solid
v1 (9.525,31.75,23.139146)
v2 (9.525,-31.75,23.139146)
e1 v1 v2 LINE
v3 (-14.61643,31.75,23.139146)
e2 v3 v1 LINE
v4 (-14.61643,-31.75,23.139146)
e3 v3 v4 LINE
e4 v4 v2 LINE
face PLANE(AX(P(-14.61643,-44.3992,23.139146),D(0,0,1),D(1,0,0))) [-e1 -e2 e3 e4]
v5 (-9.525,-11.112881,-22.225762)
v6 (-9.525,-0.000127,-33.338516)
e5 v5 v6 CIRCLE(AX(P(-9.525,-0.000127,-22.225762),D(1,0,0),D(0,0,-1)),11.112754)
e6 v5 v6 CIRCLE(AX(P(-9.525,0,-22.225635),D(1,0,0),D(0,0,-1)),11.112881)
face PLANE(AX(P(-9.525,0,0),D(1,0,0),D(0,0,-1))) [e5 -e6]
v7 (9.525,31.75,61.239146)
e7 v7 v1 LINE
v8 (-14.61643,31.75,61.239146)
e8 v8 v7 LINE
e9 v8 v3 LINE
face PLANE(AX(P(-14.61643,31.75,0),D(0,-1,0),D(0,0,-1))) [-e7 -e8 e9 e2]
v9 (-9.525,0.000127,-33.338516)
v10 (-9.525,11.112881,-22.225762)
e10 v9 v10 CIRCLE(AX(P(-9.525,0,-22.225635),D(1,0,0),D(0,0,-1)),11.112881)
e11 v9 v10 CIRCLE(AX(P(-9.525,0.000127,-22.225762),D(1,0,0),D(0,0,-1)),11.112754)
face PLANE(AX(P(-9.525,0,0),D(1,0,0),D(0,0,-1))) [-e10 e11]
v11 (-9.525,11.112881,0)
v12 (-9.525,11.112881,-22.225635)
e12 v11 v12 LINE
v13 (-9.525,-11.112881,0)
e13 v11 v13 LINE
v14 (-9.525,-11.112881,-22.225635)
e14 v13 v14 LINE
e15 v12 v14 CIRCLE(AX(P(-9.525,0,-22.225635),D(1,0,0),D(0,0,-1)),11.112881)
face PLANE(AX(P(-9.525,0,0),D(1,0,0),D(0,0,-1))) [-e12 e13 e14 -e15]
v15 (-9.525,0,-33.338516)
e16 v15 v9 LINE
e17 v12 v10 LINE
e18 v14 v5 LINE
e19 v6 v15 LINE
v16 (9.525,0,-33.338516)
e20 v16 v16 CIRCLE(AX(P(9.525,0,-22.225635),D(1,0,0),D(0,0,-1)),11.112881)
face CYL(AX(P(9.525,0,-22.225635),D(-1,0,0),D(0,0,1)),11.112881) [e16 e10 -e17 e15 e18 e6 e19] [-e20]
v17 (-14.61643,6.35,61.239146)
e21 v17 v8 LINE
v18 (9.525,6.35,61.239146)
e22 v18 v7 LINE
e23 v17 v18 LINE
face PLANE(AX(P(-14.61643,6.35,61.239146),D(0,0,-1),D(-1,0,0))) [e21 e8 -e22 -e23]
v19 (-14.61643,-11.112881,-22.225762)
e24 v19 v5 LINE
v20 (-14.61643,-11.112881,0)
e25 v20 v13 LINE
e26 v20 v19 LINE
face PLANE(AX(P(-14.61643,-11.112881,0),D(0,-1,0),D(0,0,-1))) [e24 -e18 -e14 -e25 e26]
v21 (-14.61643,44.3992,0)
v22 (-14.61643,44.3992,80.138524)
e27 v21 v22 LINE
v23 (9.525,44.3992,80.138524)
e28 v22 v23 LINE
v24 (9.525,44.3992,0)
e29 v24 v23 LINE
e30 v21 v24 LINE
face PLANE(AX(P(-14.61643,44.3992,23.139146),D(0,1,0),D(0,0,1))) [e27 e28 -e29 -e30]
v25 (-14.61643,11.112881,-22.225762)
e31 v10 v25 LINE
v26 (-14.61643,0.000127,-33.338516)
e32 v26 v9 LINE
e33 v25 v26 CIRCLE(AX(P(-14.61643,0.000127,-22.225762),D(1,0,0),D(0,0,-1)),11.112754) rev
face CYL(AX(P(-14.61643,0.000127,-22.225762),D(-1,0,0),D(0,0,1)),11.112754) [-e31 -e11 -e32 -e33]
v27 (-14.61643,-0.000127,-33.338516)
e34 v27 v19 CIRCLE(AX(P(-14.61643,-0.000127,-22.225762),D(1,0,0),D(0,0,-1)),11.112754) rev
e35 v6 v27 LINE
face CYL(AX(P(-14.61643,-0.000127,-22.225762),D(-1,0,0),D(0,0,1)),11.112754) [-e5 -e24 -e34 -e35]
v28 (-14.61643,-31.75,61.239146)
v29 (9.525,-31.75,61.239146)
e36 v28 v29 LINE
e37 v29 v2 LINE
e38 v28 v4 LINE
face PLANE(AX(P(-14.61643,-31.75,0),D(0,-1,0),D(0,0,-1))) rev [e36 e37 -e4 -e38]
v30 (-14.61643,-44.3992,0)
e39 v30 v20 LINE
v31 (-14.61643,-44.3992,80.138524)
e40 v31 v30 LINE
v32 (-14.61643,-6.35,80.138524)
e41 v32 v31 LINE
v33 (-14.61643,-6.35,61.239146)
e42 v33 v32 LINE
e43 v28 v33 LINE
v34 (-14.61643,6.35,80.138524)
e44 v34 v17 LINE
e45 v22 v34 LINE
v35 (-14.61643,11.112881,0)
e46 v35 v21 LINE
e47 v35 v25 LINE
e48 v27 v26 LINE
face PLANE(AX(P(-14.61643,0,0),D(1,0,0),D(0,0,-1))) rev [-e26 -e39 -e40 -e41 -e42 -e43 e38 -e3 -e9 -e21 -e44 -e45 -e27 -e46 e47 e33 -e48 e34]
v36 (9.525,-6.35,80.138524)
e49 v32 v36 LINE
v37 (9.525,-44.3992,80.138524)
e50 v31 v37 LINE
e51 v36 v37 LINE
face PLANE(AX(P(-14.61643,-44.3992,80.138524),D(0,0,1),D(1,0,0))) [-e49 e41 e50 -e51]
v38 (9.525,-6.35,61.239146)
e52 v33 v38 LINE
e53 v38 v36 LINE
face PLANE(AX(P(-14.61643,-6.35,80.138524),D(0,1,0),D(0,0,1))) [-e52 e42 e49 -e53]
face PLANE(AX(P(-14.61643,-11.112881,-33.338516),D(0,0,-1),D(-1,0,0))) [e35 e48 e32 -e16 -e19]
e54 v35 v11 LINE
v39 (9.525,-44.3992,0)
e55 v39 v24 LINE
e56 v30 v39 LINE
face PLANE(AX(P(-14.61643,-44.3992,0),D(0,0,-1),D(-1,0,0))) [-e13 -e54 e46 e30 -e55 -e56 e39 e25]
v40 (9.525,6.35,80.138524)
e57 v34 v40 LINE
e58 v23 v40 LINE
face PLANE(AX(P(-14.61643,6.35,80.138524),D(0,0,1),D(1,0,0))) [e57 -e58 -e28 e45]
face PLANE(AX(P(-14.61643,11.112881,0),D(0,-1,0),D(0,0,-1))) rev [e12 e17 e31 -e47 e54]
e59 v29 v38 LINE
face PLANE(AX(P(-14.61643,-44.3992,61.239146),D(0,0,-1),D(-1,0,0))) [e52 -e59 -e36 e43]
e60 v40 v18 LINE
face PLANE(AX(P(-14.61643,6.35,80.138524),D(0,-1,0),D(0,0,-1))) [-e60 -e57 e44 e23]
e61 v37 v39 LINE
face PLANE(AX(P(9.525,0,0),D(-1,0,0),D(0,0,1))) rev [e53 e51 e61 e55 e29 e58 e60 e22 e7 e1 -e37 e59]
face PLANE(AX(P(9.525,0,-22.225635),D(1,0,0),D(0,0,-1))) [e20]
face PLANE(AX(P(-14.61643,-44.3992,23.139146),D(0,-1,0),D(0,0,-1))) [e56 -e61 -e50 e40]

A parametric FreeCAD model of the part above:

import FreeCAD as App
import Part
import Sketcher
Q = App.Units.Quantity


def edges_at(feature, points):
    """Names of the edges that pass closest to the given points."""
    edges = feature.Shape.Edges
    near = lambda p: min(range(len(edges)), key=lambda i: edges[i].distToShape(Part.Vertex(*p))[0])
    return sorted({f"Edge{near(p) + 1}" for p in points})


def add_polygon(sketch, points):
    """Adds a closed chain of lines whose ends are joined by coincident constraints."""
    first, n = sketch.GeometryCount, len(points)
    for a, b in zip(points, points[1:] + points[:1]):
        sketch.addGeometry(Part.LineSegment(App.Vector(*a, 0), App.Vector(*b, 0)), False)
    for i in range(n):
        sketch.addConstraint(Sketcher.Constraint("Coincident", first + i, 2, first + (i + 1) % n, 1))

doc = App.newDocument("Part")
body = doc.addObject("PartDesign::Body", "Body")

sketch1 = body.newObject("Sketcher::SketchObject", "Sketch")
sketch1.AttachmentSupport = (doc.getObject("YZ_Plane"), [""])
sketch1.MapMode = "FlatFace"
sketch1.addGeometry(Part.Circle(App.Vector(0, -22.225635, 0), App.Vector(0, 0, 1), 11.112881), False)
sketch1.addConstraint([
    Sketcher.Constraint("PointOnObject", 0, 3, -2),
    Sketcher.Constraint("Diameter", 0, Q("22.225762 mm")),
    Sketcher.Constraint("DistanceY", 0, 3, -1, 1, Q("22.225635 mm")),
])
pad1 = body.newObject("PartDesign::Pad", "Pad")
pad1.Profile = sketch1
pad1.Length = Q("0.75 in")
pad1.Midplane = True

sketch2 = body.newObject("Sketcher::SketchObject", "Sketch001")
sketch2.AttachmentSupport = (doc.getObject("YZ_Plane"), [""])
sketch2.MapMode = "FlatFace"
sketch2.AttachmentOffset = App.Placement(App.Vector(0, 0, -0.375 * 25.4), App.Rotation())
add_polygon(sketch2, [(11.112881, 0), (11.112881, -33.338516), (-11.112881, -33.338516), (-11.112881, 0)])
sketch2.addConstraint([
    Sketcher.Constraint("Vertical", 0),
    Sketcher.Constraint("Horizontal", 1),
    Sketcher.Constraint("Vertical", 2),
    Sketcher.Constraint("Horizontal", 3),
    Sketcher.Constraint("Symmetric", 2, 2, 3, 2, -1, 1),
    Sketcher.Constraint("DistanceX", 1, 2, 1, 1, Q("22.225762 mm")),
    Sketcher.Constraint("DistanceY", 0, 2, 0, 1, Q("33.338516 mm")),
])
pad2 = body.newObject("PartDesign::Pad", "Pad001")
pad2.Profile = sketch2
pad2.Length = 5.09143
pad2.Reversed = True
doc.recompute()

fillet = body.newObject("PartDesign::Fillet", "Fillet")
fillet.Base = (pad2, edges_at(pad2, [(-12.071, 11.113, -33.339)]))
fillet.Radius = 11.112754
doc.recompute()

fillet2 = body.newObject("PartDesign::Fillet", "Fillet001")
fillet2.Base = (fillet, edges_at(fillet, [(-12.071, -11.113, -33.339)]))
fillet2.Radius = 11.112754

sketch3 = body.newObject("Sketcher::SketchObject", "Sketch002")
sketch3.AttachmentSupport = (doc.getObject("YZ_Plane"), [""])
sketch3.MapMode = "FlatFace"
sketch3.AttachmentOffset = App.Placement(App.Vector(0, 0, 0.375 * 25.4), App.Rotation())
add_polygon(sketch3, [(-44.3992, 23.139146), (-44.3992, 0), (44.3992, 0), (44.3992, 23.139146)])
sketch3.addConstraint([
    Sketcher.Constraint("Vertical", 0),
    Sketcher.Constraint("Horizontal", 1),
    Sketcher.Constraint("Vertical", 2),
    Sketcher.Constraint("Horizontal", 3),
    Sketcher.Constraint("Symmetric", 0, 2, 1, 2, -1, 1),
    Sketcher.Constraint("DistanceX", 1, 1, 1, 2, Q("3.496 in")),
    Sketcher.Constraint("DistanceY", 0, 2, 0, 1, Q("23.139146 mm")),
])
pad3 = body.newObject("PartDesign::Pad", "Pad002")
pad3.Profile = sketch3
pad3.Length = 24.14143
pad3.Reversed = True

sketch4 = body.newObject("Sketcher::SketchObject", "Sketch003")
sketch4.AttachmentSupport = (doc.getObject("YZ_Plane"), [""])
sketch4.MapMode = "FlatFace"
sketch4.AttachmentOffset = App.Placement(App.Vector(0, 0, 0.375 * 25.4), App.Rotation())
add_polygon(sketch4, [(31.75, 61.239146), (31.75, 23.139146), (44.3992, 23.139146), (44.3992, 61.239146)])
add_polygon(sketch4, [(-44.3992, 61.239146), (-44.3992, 23.139146), (-31.75, 23.139146), (-31.75, 61.239146)])
sketch4.addConstraint([
    Sketcher.Constraint("Vertical", 0),
    Sketcher.Constraint("Horizontal", 1),
    Sketcher.Constraint("Vertical", 2),
    Sketcher.Constraint("Horizontal", 3),
    Sketcher.Constraint("Vertical", 4),
    Sketcher.Constraint("Horizontal", 5),
    Sketcher.Constraint("Vertical", 6),
    Sketcher.Constraint("Horizontal", 7),
    Sketcher.Constraint("Symmetric", 1, 2, 4, 2, -2),
    Sketcher.Constraint("Symmetric", 3, 2, 6, 2, -2),
    Sketcher.Constraint("DistanceY", 0, 2, 0, 1, Q("1.5 in")),
    Sketcher.Constraint("DistanceX", 5, 2, 0, 2, Q("2.5 in")),
    Sketcher.Constraint("DistanceX", 1, 1, 1, 2, Q("0.498 in")),
    Sketcher.Constraint("DistanceY", -1, 1, 0, 2, Q("23.139146 mm")),
])
pad4 = body.newObject("PartDesign::Pad", "Pad003")
pad4.Profile = sketch4
pad4.Length = 24.14143
pad4.Reversed = True

sketch5 = body.newObject("Sketcher::SketchObject", "Sketch004")
sketch5.AttachmentSupport = (doc.getObject("YZ_Plane"), [""])
sketch5.MapMode = "FlatFace"
sketch5.AttachmentOffset = App.Placement(App.Vector(0, 0, 0.375 * 25.4), App.Rotation())
add_polygon(sketch5, [(6.35, 80.138524), (6.35, 61.239146), (44.3992, 61.239146), (44.3992, 80.138524)])
add_polygon(sketch5, [(-44.3992, 80.138524), (-44.3992, 61.239146), (-6.35, 61.239146), (-6.35, 80.138524)])
sketch5.addConstraint([
    Sketcher.Constraint("Vertical", 0),
    Sketcher.Constraint("Horizontal", 1),
    Sketcher.Constraint("Vertical", 2),
    Sketcher.Constraint("Horizontal", 3),
    Sketcher.Constraint("Vertical", 4),
    Sketcher.Constraint("Horizontal", 5),
    Sketcher.Constraint("Vertical", 6),
    Sketcher.Constraint("Horizontal", 7),
    Sketcher.Constraint("Symmetric", 1, 2, 4, 2, -2),
    Sketcher.Constraint("Symmetric", 3, 2, 6, 2, -2),
    Sketcher.Constraint("DistanceX", 5, 2, 0, 2, Q("0.5 in")),
    Sketcher.Constraint("DistanceX", 1, 1, 1, 2, Q("1.498 in")),
    Sketcher.Constraint("DistanceY", 0, 2, 0, 1, Q("18.899378 mm")),
    Sketcher.Constraint("DistanceY", -1, 1, 0, 2, Q("61.239146 mm")),
])
pad5 = body.newObject("PartDesign::Pad", "Pad004")
pad5.Profile = sketch5
pad5.Length = 24.14143
pad5.Reversed = True

doc.recompute()
